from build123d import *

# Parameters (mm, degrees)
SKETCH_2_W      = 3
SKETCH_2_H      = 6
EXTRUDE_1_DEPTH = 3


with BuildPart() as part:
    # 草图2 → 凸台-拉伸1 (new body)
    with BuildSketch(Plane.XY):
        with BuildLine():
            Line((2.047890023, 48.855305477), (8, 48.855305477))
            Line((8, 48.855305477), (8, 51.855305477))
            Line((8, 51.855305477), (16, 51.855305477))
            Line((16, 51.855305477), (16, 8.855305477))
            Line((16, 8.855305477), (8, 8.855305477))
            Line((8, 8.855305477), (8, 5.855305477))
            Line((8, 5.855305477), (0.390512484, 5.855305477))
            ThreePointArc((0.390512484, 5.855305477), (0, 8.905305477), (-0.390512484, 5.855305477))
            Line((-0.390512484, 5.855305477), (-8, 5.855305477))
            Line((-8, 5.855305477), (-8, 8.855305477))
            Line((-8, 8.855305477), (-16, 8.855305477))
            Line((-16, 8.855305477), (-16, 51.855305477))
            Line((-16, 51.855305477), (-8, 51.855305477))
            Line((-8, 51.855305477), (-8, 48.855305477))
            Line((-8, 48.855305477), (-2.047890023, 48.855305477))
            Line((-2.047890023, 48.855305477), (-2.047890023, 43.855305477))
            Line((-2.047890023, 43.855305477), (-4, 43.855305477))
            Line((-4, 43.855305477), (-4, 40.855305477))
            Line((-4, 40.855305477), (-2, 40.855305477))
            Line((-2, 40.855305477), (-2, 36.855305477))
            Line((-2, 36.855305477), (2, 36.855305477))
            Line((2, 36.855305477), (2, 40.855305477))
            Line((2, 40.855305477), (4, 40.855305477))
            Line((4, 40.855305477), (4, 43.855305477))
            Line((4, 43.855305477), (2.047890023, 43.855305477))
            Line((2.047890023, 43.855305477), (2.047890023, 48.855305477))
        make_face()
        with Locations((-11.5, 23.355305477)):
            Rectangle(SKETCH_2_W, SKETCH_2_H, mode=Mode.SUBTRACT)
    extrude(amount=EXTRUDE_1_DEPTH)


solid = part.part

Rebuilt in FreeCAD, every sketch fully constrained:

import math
import FreeCAD as App
import Part
import Sketcher

V = App.Vector


def add_polygon(sketch, points):
    """Adds a closed chain of lines whose ends are joined by coincident constraints."""
    first, n = sketch.GeometryCount, len(points)
    for a, b in zip(points, points[1:] + points[:1]):
        sketch.addGeometry(Part.LineSegment(App.Vector(*a, 0), App.Vector(*b, 0)), False)
    for i in range(n):
        sketch.addConstraint(Sketcher.Constraint("Coincident", first + i, 2, first + (i + 1) % n, 1))

doc = App.newDocument("Part")
body = doc.addObject("PartDesign::Body", "Body")

sketch1 = body.newObject("Sketcher::SketchObject", "Sketch")
sketch1.AttachmentSupport = (doc.getObject("XY_Plane"), [""])
sketch1.MapMode = "FlatFace"
sketch1.addGeometry(Part.LineSegment(V(8, 48.9, 0), V(2, 48.9, 0)), False)
sketch1.addGeometry(Part.LineSegment(V(2, 48.9, 0), V(2, 43.9, 0)), False)
sketch1.addGeometry(Part.LineSegment(V(2, 43.9, 0), V(4, 43.9, 0)), False)
sketch1.addGeometry(Part.LineSegment(V(4, 43.9, 0), V(4, 40.9, 0)), False)
sketch1.addGeometry(Part.LineSegment(V(4, 40.9, 0), V(2, 40.9, 0)), False)
sketch1.addGeometry(Part.LineSegment(V(2, 40.9, 0), V(2, 36.9, 0)), False)
sketch1.addGeometry(Part.LineSegment(V(2, 36.9, 0), V(-2, 36.9, 0)), False)
sketch1.addGeometry(Part.LineSegment(V(-2, 36.9, 0), V(-2, 40.9, 0)), False)
sketch1.addGeometry(Part.LineSegment(V(-2, 40.9, 0), V(-4, 40.9, 0)), False)
sketch1.addGeometry(Part.LineSegment(V(-4, 40.9, 0), V(-4, 43.9, 0)), False)
sketch1.addGeometry(Part.LineSegment(V(-4, 43.9, 0), V(-2, 43.9, 0)), False)
sketch1.addGeometry(Part.LineSegment(V(-2, 43.9, 0), V(-2, 48.9, 0)), False)
sketch1.addGeometry(Part.LineSegment(V(-2, 48.9, 0), V(-8, 48.9, 0)), False)
sketch1.addGeometry(Part.LineSegment(V(-8, 48.9, 0), V(-8, 51.9, 0)), False)
sketch1.addGeometry(Part.LineSegment(V(-8, 51.9, 0), V(-16, 51.9, 0)), False)
sketch1.addGeometry(Part.LineSegment(V(-16, 51.9, 0), V(-16, 8.9, 0)), False)
sketch1.addGeometry(Part.LineSegment(V(-16, 8.9, 0), V(-8, 8.9, 0)), False)
sketch1.addGeometry(Part.LineSegment(V(-8, 8.9, 0), V(-8, 5.9, 0)), False)
sketch1.addGeometry(Part.LineSegment(V(-8, 5.9, 0), V(-0.4, 5.9, 0)), False)
sketch1.addGeometry(Part.ArcOfCircle(Part.Circle(V(0, 7.4, 0), V(0, 0, 1), 1.6), math.radians(-75), math.radians(255)), False)
sketch1.addGeometry(Part.LineSegment(V(0.4, 5.9, 0), V(8, 5.9, 0)), False)
sketch1.addGeometry(Part.LineSegment(V(8, 5.9, 0), V(8, 8.9, 0)), False)
sketch1.addGeometry(Part.LineSegment(V(8, 8.9, 0), V(16, 8.9, 0)), False)
sketch1.addGeometry(Part.LineSegment(V(16, 8.9, 0), V(16, 51.9, 0)), False)
sketch1.addGeometry(Part.LineSegment(V(16, 51.9, 0), V(8, 51.9, 0)), False)
sketch1.addGeometry(Part.LineSegment(V(8, 51.9, 0), V(8, 48.9, 0)), False)
add_polygon(sketch1, [(-13, 20.4), (-13, 26.4), (-10, 26.4), (-10, 20.4)])
sketch1.addConstraint([
    Sketcher.Constraint("Coincident", 0, 2, 1, 1),
    Sketcher.Constraint("Coincident", 1, 2, 2, 1),
    Sketcher.Constraint("Coincident", 2, 2, 3, 1),
    Sketcher.Constraint("Coincident", 3, 2, 4, 1),
    Sketcher.Constraint("Coincident", 4, 2, 5, 1),
    Sketcher.Constraint("Coincident", 5, 2, 6, 1),
    Sketcher.Constraint("Coincident", 6, 2, 7, 1),
    Sketcher.Constraint("Coincident", 7, 2, 8, 1),
    Sketcher.Constraint("Coincident", 8, 2, 9, 1),
    Sketcher.Constraint("Coincident", 9, 2, 10, 1),
    Sketcher.Constraint("Coincident", 10, 2, 11, 1),
    Sketcher.Constraint("Coincident", 11, 2, 12, 1),
    Sketcher.Constraint("Coincident", 12, 2, 13, 1),
    Sketcher.Constraint("Coincident", 13, 2, 14, 1),
    Sketcher.Constraint("Coincident", 14, 2, 15, 1),
    Sketcher.Constraint("Coincident", 15, 2, 16, 1),
    Sketcher.Constraint("Coincident", 16, 2, 17, 1),
    Sketcher.Constraint("Coincident", 17, 2, 18, 1),
    Sketcher.Constraint("Coincident", 18, 2, 19, 2),
    Sketcher.Constraint("Coincident", 19, 1, 20, 1),
    Sketcher.Constraint("Coincident", 20, 2, 21, 1),
    Sketcher.Constraint("Coincident", 21, 2, 22, 1),
    Sketcher.Constraint("Coincident", 22, 2, 23, 1),
    Sketcher.Constraint("Coincident", 23, 2, 24, 1),
    Sketcher.Constraint("Coincident", 24, 2, 25, 1),
    Sketcher.Constraint("Coincident", 25, 2, 0, 1),
    Sketcher.Constraint("Horizontal", 0),
    Sketcher.Constraint("Vertical", 1),
    Sketcher.Constraint("Horizontal", 2),
    Sketcher.Constraint("Vertical", 3),
    Sketcher.Constraint("Horizontal", 4),
    Sketcher.Constraint("Vertical", 5),
    Sketcher.Constraint("Horizontal", 6),
    Sketcher.Constraint("Vertical", 7),
    Sketcher.Constraint("Horizontal", 8),
    Sketcher.Constraint("Vertical", 9),
    Sketcher.Constraint("Horizontal", 10),
    Sketcher.Constraint("Vertical", 11),
    Sketcher.Constraint("Horizontal", 12),
    Sketcher.Constraint("Vertical", 13),
    Sketcher.Constraint("Horizontal", 14),
    Sketcher.Constraint("Vertical", 15),
    Sketcher.Constraint("Horizontal", 16),
    Sketcher.Constraint("Vertical", 17),
    Sketcher.Constraint("Horizontal", 18),
    Sketcher.Constraint("Horizontal", 20),
    Sketcher.Constraint("Vertical", 21),
    Sketcher.Constraint("Horizontal", 22),
    Sketcher.Constraint("Vertical", 23),
    Sketcher.Constraint("Horizontal", 24),
    Sketcher.Constraint("Vertical", 25),
    Sketcher.Constraint("Vertical", 26),
    Sketcher.Constraint("Horizontal", 27),
    Sketcher.Constraint("Vertical", 28),
    Sketcher.Constraint("Horizontal", 29),
    Sketcher.Constraint("Symmetric", 4, 2, 7, 2, -2),
    Sketcher.Constraint("Symmetric", 2, 2, 9, 2, -2),
    Sketcher.Constraint("Symmetric", 0, 2, 11, 2, -2),
    Sketcher.Constraint("Symmetric", 18, 2, 19, 1, -2),
    Sketcher.Constraint("Symmetric", 16, 2, 21, 2, -2),
    Sketcher.Constraint("Symmetric", 14, 2, 23, 2, -2),
    Sketcher.Constraint("Vertical", 13, 2, 16, 2),
    Sketcher.Constraint("Vertical", 21, 2, 24, 2),
    Sketcher.Constraint("Equal", 29, 3),
    Sketcher.Constraint("Equal", 6, 5),
    Sketcher.Constraint("Equal", 9, 13),
    Sketcher.Constraint("Equal", 13, 17),
    Sketcher.Constraint("DistanceX", 4, 2, 4, 1, 2.0),
    Sketcher.Constraint("DistanceX", 6, 2, 6, 1, 4.0),
    Sketcher.Constraint("DistanceX", 14, 2, 14, 1, 8.0),
    Sketcher.Constraint("DistanceX", 27, 1, 27, 2, 3.0),
    Sketcher.Constraint("DistanceY", 1, 2, 1, 1, 5.0),
    Sketcher.Constraint("DistanceY", 15, 2, 15, 1, 43.0),
    Sketcher.Constraint("DistanceY", 26, 1, 26, 2, 6.0),
    Sketcher.Constraint("Radius", 19, 1.55),
    Sketcher.Constraint("DistanceX", 12, 2, -1, 1, 8.0),
    Sketcher.Constraint("DistanceX", 26, 2, -1, 1, 13.0),
    Sketcher.Constraint("DistanceY", 19, 3, 0, 2, 41.5),
    Sketcher.Constraint("DistanceY", 26, 2, 6, 2, 10.5),
    Sketcher.Constraint("DistanceX", 0, 2, 0, 1, 5.95211),
    Sketcher.Constraint("DistanceY", -1, 1, 19, 3, 7.355305),
])
pad1 = body.newObject("PartDesign::Pad", "Pad")
pad1.Profile = sketch1
pad1.Length = 3

doc.recompute()
